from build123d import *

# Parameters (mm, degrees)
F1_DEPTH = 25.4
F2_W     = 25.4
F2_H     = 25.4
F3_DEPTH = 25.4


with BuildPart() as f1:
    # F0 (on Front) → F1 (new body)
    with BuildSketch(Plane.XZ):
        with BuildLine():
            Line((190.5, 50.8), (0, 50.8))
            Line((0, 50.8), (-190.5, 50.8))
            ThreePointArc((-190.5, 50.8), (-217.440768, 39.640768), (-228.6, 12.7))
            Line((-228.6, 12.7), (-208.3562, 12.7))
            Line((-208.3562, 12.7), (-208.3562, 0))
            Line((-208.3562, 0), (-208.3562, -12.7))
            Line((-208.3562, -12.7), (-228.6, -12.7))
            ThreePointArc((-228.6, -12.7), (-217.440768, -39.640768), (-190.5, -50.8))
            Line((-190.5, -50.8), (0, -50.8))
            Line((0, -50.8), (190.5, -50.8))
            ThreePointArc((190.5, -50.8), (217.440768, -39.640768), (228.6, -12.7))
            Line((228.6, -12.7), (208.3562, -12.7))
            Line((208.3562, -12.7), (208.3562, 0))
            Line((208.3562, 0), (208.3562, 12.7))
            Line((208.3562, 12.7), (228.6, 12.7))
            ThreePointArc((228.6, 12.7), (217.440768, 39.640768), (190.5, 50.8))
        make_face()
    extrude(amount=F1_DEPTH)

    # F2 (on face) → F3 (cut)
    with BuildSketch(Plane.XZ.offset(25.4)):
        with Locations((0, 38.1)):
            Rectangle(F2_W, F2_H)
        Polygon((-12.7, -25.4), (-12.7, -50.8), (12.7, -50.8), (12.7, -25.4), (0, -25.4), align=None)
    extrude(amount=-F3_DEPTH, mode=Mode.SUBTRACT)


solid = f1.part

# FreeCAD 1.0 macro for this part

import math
import FreeCAD as App
import Part
import Sketcher
Q = App.Units.Quantity


def add_polygon(sketch, points):
    """Adds a closed chain of lines whose ends are joined by coincident constraints."""
    first, n = sketch.GeometryCount, len(points)
    for a, b in zip(points, points[1:] + points[:1]):
        sketch.addGeometry(Part.LineSegment(App.Vector(*a, 0), App.Vector(*b, 0)), False)
    for i in range(n):
        sketch.addConstraint(Sketcher.Constraint("Coincident", first + i, 2, first + (i + 1) % n, 1))

doc = App.newDocument("Part")
body = doc.addObject("PartDesign::Body", "Body")

sketch1 = body.newObject("Sketcher::SketchObject", "Sketch")
sketch1.AttachmentSupport = (doc.getObject("XZ_Plane"), [""])
sketch1.MapMode = "FlatFace"
sketch1.addGeometry([
    Part.LineSegment(App.Vector(190, 51, 0), App.Vector(-190, 51, 0)),
    Part.ArcOfCircle(Part.Circle(App.Vector(-190, 13, 0), App.Vector(0, 0, 1), 38), math.radians(90), math.radians(180)),
    Part.LineSegment(App.Vector(-229, 13, 0), App.Vector(-208, 13, 0)),
    Part.LineSegment(App.Vector(-208, 13, 0), App.Vector(-208, -13, 0)),
    Part.LineSegment(App.Vector(-208, -13, 0), App.Vector(-229, -13, 0)),
    Part.ArcOfCircle(Part.Circle(App.Vector(-190, -13, 0), App.Vector(0, 0, 1), 38), math.radians(-180), math.radians(-90)),
    Part.LineSegment(App.Vector(-190, -51, 0), App.Vector(190, -51, 0)),
    Part.ArcOfCircle(Part.Circle(App.Vector(190, -13, 0), App.Vector(0, 0, 1), 38), math.radians(-90), math.radians(0)),
    Part.LineSegment(App.Vector(229, -13, 0), App.Vector(208, -13, 0)),
    Part.LineSegment(App.Vector(208, -13, 0), App.Vector(208, 13, 0)),
    Part.LineSegment(App.Vector(208, 13, 0), App.Vector(229, 13, 0)),
    Part.ArcOfCircle(Part.Circle(App.Vector(190, 13, 0), App.Vector(0, 0, 1), 38), math.radians(0), math.radians(90)),
], False)
sketch1.addConstraint([
    Sketcher.Constraint("Tangent", 0, 2, 1, 1),
    Sketcher.Constraint("Coincident", 1, 2, 2, 1),
    Sketcher.Constraint("Coincident", 2, 2, 3, 1),
    Sketcher.Constraint("Coincident", 3, 2, 4, 1),
    Sketcher.Constraint("Coincident", 4, 2, 5, 1),
    Sketcher.Constraint("Tangent", 5, 2, 6, 1),
    Sketcher.Constraint("Tangent", 6, 2, 7, 1),
    Sketcher.Constraint("Coincident", 7, 2, 8, 1),
    Sketcher.Constraint("Coincident", 8, 2, 9, 1),
    Sketcher.Constraint("Coincident", 9, 2, 10, 1),
    Sketcher.Constraint("Coincident", 10, 2, 11, 1),
    Sketcher.Constraint("Tangent", 11, 2, 0, 1),
    Sketcher.Constraint("Horizontal", 0),
    Sketcher.Constraint("Horizontal", 2),
    Sketcher.Constraint("Vertical", 3),
    Sketcher.Constraint("Horizontal", 4),
    Sketcher.Constraint("Horizontal", 6),
    Sketcher.Constraint("Horizontal", 8),
    Sketcher.Constraint("Vertical", 9),
    Sketcher.Constraint("Horizontal", 10),
    Sketcher.Constraint("Equal", 1, 5),
    Sketcher.Constraint("Equal", 5, 7),
    Sketcher.Constraint("Equal", 7, 11),
    Sketcher.Constraint("Symmetric", 1, 3, 7, 3, -1, 1),
    Sketcher.Constraint("Symmetric", 2, 2, 8, 2, -1, 1),
    Sketcher.Constraint("Symmetric", 4, 2, 10, 2, -1, 1),
    Sketcher.Constraint("Symmetric", 4, 2, 7, 2, -2),
    Sketcher.Constraint("Horizontal", 11, 3, 1, 2),
    Sketcher.Constraint("Radius", 1, Q("1.5 in")),
    Sketcher.Constraint("DistanceX", 0, 2, 0, 1, Q("15 in")),
    Sketcher.Constraint("DistanceY", 3, 2, 3, 1, Q("1 in")),
    Sketcher.Constraint("DistanceX", 2, 1, 2, 2, Q("0.797 in")),
])
pad1 = body.newObject("PartDesign::Pad", "Pad")
pad1.Profile = sketch1
pad1.Length = Q("1 in")

sketch2 = body.newObject("Sketcher::SketchObject", "Sketch001")
sketch2.AttachmentSupport = (doc.getObject("XZ_Plane"), [""])
sketch2.MapMode = "FlatFace"
sketch2.AttachmentOffset = App.Placement(App.Vector(0, 0, 1 * 25.4), App.Rotation())
add_polygon(sketch2, [(-13, 51), (-13, 25), (13, 25), (13, 51)])
add_polygon(sketch2, [(-13, -25), (-13, -51), (13, -51), (13, -25)])
sketch2.addConstraint([
    Sketcher.Constraint("Vertical", 0),
    Sketcher.Constraint("Horizontal", 1),
    Sketcher.Constraint("Vertical", 2),
    Sketcher.Constraint("Horizontal", 3),
    Sketcher.Constraint("Vertical", 4),
    Sketcher.Constraint("Horizontal", 5),
    Sketcher.Constraint("Vertical", 6),
    Sketcher.Constraint("Horizontal", 7),
    Sketcher.Constraint("Symmetric", 2, 2, 4, 2, -1, 1),
    Sketcher.Constraint("Symmetric", 0, 2, 6, 2, -1, 1),
    Sketcher.Constraint("Vertical", 3, 2, 4, 2),
    Sketcher.Constraint("Equal", 7, 0),
    Sketcher.Constraint("DistanceX", 1, 1, 1, 2, Q("1 in")),
    Sketcher.Constraint("DistanceY", -1, 1, 0, 2, Q("1 in")),
])
pocket1 = body.newObject("PartDesign::Pocket", "Pocket")
pocket1.Profile = sketch2
pocket1.Length = Q("1 in")

doc.recompute()
